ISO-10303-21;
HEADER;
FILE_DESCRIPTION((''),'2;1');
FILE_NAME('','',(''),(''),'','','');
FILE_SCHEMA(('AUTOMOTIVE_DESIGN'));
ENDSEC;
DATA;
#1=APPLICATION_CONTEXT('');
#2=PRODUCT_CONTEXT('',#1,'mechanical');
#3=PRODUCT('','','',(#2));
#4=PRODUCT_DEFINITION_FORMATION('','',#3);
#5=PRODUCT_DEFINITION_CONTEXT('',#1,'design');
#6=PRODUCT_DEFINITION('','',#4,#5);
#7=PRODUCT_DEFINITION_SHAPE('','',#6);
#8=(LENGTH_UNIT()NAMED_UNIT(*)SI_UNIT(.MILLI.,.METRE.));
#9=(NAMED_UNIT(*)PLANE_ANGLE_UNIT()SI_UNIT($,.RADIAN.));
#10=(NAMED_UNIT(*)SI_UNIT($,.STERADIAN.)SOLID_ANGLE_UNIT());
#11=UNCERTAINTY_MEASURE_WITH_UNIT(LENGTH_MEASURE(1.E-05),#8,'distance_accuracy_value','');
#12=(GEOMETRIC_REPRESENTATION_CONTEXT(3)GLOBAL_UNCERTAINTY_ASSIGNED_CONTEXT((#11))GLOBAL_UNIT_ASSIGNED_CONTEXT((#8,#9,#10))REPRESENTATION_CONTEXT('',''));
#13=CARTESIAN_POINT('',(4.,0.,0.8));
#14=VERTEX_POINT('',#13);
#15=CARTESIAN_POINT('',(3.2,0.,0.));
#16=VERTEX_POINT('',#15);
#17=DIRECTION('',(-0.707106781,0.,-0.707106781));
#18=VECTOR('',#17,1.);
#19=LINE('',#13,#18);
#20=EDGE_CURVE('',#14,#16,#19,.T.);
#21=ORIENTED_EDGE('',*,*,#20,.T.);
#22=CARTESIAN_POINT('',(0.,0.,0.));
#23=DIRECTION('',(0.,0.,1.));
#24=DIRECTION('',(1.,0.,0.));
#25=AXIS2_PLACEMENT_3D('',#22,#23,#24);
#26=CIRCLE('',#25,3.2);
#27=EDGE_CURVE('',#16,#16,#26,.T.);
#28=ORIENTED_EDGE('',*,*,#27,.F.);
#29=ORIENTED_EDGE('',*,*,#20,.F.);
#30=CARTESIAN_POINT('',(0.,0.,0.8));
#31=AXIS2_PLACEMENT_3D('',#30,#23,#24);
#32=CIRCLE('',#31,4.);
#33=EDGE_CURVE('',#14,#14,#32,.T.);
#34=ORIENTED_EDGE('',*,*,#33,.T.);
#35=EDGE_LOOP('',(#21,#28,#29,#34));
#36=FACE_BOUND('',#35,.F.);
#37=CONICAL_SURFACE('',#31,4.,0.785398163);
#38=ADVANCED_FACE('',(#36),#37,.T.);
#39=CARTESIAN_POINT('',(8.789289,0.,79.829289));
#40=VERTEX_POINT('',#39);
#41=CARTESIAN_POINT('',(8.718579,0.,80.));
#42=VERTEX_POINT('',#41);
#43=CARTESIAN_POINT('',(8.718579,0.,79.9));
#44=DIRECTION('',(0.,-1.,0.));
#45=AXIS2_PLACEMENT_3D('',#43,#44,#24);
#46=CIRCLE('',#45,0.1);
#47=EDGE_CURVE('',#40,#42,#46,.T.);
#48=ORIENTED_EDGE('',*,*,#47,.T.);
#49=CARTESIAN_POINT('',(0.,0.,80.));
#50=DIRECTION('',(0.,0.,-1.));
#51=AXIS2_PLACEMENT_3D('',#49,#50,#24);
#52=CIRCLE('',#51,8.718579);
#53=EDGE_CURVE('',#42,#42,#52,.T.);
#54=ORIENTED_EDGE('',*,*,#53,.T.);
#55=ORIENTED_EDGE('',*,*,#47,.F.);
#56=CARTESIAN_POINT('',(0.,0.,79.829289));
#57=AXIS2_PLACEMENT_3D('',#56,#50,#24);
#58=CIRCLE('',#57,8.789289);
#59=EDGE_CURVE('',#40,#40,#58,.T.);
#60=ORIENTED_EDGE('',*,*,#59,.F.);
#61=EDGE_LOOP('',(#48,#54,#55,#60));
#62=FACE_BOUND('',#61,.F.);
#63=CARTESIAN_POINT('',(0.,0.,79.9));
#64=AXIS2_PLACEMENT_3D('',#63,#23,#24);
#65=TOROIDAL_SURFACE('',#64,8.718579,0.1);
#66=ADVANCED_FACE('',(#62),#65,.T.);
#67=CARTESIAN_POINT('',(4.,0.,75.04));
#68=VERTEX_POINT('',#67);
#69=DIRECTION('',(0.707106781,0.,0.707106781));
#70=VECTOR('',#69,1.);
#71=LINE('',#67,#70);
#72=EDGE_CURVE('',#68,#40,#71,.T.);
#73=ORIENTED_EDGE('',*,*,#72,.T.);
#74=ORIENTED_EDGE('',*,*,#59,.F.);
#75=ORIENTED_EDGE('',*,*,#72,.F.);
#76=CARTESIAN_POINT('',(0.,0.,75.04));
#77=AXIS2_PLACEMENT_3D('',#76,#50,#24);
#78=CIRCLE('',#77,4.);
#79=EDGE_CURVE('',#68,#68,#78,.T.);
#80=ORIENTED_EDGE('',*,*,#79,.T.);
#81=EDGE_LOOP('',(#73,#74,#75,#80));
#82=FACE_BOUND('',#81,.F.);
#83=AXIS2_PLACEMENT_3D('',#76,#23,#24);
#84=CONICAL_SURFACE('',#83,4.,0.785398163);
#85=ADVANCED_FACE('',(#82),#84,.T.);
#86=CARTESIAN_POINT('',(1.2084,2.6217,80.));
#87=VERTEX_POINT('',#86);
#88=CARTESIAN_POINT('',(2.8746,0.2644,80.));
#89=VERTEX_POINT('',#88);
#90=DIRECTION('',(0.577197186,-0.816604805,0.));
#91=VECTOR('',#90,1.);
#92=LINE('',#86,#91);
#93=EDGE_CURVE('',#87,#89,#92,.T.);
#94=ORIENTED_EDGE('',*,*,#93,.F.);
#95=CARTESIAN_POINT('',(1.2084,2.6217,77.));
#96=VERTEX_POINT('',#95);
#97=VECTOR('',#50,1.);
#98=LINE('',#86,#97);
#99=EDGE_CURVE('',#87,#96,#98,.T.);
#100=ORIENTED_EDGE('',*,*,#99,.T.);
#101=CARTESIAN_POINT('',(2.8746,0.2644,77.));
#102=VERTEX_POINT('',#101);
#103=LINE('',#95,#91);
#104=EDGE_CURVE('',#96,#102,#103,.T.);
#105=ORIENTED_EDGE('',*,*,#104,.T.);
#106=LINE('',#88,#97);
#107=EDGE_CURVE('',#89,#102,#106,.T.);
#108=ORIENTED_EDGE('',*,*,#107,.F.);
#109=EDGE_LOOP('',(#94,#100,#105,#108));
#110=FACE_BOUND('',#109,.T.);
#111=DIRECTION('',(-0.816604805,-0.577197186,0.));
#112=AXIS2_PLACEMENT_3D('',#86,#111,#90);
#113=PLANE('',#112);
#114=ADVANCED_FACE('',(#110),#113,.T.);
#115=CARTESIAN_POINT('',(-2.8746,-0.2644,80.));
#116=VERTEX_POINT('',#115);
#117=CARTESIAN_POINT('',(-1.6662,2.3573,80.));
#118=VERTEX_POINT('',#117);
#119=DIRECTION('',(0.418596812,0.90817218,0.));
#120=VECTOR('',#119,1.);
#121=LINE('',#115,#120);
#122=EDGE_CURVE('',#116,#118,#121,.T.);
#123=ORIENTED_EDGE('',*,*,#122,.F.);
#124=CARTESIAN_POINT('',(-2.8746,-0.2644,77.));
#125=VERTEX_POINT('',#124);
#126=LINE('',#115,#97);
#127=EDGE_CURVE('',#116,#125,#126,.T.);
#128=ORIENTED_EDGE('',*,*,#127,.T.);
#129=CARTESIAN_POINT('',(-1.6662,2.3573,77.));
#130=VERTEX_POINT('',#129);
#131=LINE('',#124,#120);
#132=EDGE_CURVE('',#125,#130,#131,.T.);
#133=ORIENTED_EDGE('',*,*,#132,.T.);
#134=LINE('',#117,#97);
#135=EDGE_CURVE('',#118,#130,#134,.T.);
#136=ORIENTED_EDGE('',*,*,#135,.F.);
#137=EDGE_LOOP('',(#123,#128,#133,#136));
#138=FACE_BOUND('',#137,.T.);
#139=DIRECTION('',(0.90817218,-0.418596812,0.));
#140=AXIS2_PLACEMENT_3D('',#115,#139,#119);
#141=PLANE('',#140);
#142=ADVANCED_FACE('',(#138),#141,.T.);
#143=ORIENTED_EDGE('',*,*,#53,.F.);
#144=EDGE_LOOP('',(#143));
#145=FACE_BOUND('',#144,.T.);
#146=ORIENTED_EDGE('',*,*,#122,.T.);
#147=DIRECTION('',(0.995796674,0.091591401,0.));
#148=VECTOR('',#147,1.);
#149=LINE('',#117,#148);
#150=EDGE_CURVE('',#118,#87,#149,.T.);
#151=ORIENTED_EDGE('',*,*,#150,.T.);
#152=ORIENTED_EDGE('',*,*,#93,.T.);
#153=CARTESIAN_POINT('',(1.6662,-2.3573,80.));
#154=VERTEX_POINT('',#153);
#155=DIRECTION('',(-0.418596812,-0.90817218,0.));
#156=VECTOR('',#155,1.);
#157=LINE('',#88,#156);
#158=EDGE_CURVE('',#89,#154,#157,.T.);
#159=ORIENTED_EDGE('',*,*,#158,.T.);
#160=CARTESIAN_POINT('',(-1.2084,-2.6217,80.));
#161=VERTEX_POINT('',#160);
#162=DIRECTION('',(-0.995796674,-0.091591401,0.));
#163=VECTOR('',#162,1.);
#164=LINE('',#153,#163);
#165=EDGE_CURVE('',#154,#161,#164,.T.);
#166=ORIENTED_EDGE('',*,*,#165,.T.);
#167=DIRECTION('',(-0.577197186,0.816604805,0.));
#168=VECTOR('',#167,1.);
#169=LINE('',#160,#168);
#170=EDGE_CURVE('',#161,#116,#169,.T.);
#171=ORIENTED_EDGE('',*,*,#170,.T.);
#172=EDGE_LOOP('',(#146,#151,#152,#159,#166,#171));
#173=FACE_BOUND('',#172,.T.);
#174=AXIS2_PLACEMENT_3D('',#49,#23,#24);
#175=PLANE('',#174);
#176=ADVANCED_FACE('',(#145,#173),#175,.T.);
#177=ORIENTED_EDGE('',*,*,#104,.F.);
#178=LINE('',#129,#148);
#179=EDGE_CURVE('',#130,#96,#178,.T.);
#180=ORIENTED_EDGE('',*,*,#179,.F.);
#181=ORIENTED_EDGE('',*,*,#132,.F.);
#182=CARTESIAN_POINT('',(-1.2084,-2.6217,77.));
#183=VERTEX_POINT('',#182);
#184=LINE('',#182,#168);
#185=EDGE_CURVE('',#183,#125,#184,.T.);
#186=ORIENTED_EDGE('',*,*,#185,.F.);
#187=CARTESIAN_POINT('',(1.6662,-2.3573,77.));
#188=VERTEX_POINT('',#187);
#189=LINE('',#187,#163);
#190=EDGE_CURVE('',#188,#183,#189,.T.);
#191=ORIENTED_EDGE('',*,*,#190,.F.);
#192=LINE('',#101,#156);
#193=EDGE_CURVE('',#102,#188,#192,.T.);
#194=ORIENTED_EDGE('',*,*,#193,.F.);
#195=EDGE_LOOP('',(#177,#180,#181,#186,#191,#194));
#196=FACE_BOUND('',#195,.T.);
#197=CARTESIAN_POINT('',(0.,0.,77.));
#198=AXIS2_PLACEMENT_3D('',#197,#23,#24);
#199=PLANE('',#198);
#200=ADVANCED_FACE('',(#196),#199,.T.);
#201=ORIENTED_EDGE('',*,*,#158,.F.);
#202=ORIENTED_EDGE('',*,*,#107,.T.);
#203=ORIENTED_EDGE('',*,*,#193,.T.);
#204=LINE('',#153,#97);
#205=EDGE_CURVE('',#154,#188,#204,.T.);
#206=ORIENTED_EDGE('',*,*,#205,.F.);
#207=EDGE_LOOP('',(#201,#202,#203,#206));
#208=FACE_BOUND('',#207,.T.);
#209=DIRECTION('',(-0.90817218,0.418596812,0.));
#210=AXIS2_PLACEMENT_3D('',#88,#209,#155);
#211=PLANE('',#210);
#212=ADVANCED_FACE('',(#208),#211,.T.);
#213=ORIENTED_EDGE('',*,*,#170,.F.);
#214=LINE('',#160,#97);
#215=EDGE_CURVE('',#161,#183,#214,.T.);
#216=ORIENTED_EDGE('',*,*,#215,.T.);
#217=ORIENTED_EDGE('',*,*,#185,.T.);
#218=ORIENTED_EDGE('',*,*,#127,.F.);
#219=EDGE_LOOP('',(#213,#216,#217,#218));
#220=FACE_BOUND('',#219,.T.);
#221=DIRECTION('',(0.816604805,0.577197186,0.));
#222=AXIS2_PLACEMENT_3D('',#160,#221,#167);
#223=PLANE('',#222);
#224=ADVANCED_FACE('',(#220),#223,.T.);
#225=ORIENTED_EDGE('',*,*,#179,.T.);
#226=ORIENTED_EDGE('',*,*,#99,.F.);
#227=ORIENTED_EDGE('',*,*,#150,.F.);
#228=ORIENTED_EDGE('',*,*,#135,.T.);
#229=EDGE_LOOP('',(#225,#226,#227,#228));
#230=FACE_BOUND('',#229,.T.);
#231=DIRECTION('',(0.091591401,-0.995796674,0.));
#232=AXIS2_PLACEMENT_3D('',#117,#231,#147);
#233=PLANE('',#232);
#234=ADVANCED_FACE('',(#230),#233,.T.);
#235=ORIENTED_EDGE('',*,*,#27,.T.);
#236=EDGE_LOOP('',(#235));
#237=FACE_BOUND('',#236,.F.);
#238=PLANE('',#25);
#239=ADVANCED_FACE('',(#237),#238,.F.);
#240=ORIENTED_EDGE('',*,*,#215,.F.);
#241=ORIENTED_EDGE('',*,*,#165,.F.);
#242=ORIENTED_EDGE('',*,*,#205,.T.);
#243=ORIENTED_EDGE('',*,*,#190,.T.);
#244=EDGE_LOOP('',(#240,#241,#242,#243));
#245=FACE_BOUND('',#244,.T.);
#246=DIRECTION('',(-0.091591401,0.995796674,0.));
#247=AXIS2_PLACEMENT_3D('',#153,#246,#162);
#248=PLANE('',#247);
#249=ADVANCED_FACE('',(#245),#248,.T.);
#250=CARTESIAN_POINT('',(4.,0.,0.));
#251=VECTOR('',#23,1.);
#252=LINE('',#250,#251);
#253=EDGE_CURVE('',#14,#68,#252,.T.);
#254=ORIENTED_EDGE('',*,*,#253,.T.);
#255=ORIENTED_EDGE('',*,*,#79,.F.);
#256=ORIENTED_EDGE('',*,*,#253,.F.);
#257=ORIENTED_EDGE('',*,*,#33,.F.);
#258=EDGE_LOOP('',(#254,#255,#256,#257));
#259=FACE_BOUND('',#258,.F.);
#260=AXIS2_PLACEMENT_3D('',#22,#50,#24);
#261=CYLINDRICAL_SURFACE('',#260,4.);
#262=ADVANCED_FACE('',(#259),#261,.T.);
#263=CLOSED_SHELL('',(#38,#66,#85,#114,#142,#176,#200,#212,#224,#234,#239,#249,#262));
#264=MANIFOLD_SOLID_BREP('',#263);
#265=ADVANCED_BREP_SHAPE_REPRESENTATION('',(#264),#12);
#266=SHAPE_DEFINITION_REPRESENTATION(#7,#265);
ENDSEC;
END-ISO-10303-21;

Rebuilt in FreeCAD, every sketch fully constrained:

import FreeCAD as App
import Part
import Sketcher
from FreeCAD import Vector
Q = App.Units.Quantity


def edges_at(feature, points):
    """Names of the edges that pass closest to the given points."""
    edges = feature.Shape.Edges
    near = lambda p: min(range(len(edges)), key=lambda i: edges[i].distToShape(Part.Vertex(*p))[0])
    return sorted({f"Edge{near(p) + 1}" for p in points})

doc = App.newDocument("Part")
body = doc.addObject("PartDesign::Body", "Body")

sketch1 = body.newObject("Sketcher::SketchObject", "Sketch")
sketch1.AttachmentSupport = (doc.getObject("XY_Plane"), [""])
sketch1.MapMode = "FlatFace"
sketch1.addGeometry(Part.Circle(Vector(0, 0, 0), Vector(0, 0, 1), 4), False)
sketch1.addConstraint(Sketcher.Constraint("Coincident", 0, 3, -1, 1))
sketch1.addConstraint(Sketcher.Constraint("Diameter", 0, Q("8 mm")))
pad1 = body.newObject("PartDesign::Pad", "Pad")
pad1.Profile = sketch1
pad1.Length = 75.04

sketch2 = body.newObject("Sketcher::SketchObject", "Sketch001")
sketch2.AttachmentSupport = (doc.getObject("XY_Plane"), [""])
sketch2.MapMode = "FlatFace"
sketch2.AttachmentOffset = App.Placement(Vector(0, 0, 75.04), App.Rotation())
sketch2.addGeometry(Part.Circle(Vector(0, 0, 0), Vector(0, 0, 1), 4), False)
sketch2.addConstraint(Sketcher.Constraint("Coincident", 0, 3, -1, 1))
sketch2.addConstraint(Sketcher.Constraint("Diameter", 0, Q("8 mm")))
pad2 = body.newObject("PartDesign::Pad", "Pad001")
pad2.Profile = sketch2
pad2.Length = 4.96
pad2.TaperAngle = 45

sketch3 = body.newObject("Sketcher::SketchObject", "Sketch002")
sketch3.AttachmentSupport = (doc.getObject("XY_Plane"), [""])
sketch3.MapMode = "FlatFace"
sketch3.AttachmentOffset = App.Placement(Vector(0, 0, 80), App.Rotation())
sketch3.addGeometry(Part.LineSegment(Vector(2.9, 0.3, 0), Vector(1.2, 2.6, 0)), False)
sketch3.addGeometry(Part.LineSegment(Vector(1.2, 2.6, 0), Vector(-1.7, 2.4, 0)), False)
sketch3.addGeometry(Part.LineSegment(Vector(-1.7, 2.4, 0), Vector(-2.9, -0.3, 0)), False)
sketch3.addGeometry(Part.LineSegment(Vector(-2.9, -0.3, 0), Vector(-1.2, -2.6, 0)), False)
sketch3.addGeometry(Part.LineSegment(Vector(-1.2, -2.6, 0), Vector(1.7, -2.4, 0)), False)
sketch3.addGeometry(Part.LineSegment(Vector(1.7, -2.4, 0), Vector(2.9, 0.3, 0)), False)
sketch3.addConstraint(Sketcher.Constraint("Coincident", 0, 2, 1, 1))
sketch3.addConstraint(Sketcher.Constraint("Coincident", 1, 2, 2, 1))
sketch3.addConstraint(Sketcher.Constraint("Coincident", 2, 2, 3, 1))
sketch3.addConstraint(Sketcher.Constraint("Coincident", 3, 2, 4, 1))
sketch3.addConstraint(Sketcher.Constraint("Coincident", 4, 2, 5, 1))
sketch3.addConstraint(Sketcher.Constraint("Coincident", 5, 2, 0, 1))
sketch3.addConstraint(Sketcher.Constraint("Symmetric", 0, 2, 3, 2, -1, 1))
sketch3.addConstraint(Sketcher.Constraint("Symmetric", 1, 2, 4, 2, -1, 1))
sketch3.addConstraint(Sketcher.Constraint("Symmetric", 2, 2, 5, 2, -1, 1))
sketch3.addConstraint(Sketcher.Constraint("Equal", 0, 1))
sketch3.addConstraint(Sketcher.Constraint("Equal", 1, 2))
sketch3.addConstraint(Sketcher.Constraint("DistanceX", 2, 2, 0, 2, Q("4.083 mm")))
sketch3.addConstraint(Sketcher.Constraint("DistanceY", 2, 2, 0, 2, Q("2.886 mm")))
sketch3.addConstraint(Sketcher.Constraint("DistanceY", 3, 2, 1, 2, Q("4.979 mm")))
sketch3.addConstraint(Sketcher.Constraint("Distance", 0, Q("2.8867 mm")))
pocket1 = body.newObject("PartDesign::Pocket", "Pocket")
pocket1.Profile = sketch3
pocket1.Length = 3
doc.recompute()

chamfer = body.newObject("PartDesign::Chamfer", "Chamfer")
chamfer.Base = (pocket1, edges_at(pocket1, [(-4, 0, 0)]))
chamfer.Size = 0.8
doc.recompute()

fillet = body.newObject("PartDesign::Fillet", "Fillet")
fillet.Base = (chamfer, edges_at(chamfer, [(-8.96, 0, 80)]))
fillet.Radius = 0.1

doc.recompute()
